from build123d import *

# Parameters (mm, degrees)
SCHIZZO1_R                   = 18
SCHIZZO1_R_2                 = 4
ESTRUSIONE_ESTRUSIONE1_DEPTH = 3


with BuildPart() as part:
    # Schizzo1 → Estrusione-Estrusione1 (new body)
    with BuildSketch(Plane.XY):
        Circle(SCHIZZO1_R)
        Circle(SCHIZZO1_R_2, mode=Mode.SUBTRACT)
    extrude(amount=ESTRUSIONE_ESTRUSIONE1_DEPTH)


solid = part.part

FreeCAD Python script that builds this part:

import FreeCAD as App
import Part
import Sketcher
Q = App.Units.Quantity

doc = App.newDocument("Part")
params = doc.addObject("Spreadsheet::Sheet", "Params")
for row, (alias, value) in enumerate([
    ("sketch1_diameter", "36 mm"),
    ("sketch1_diameter2", "8 mm"),
    ("pad1_length", "3 mm"),
], start=1):
    params.set(f"A{row}", alias)
    params.set(f"B{row}", "=" + value)
    params.setAlias(f"B{row}", alias)

body = doc.addObject("PartDesign::Body", "Body")

# Sketch on XY plane
sketch1 = body.newObject("Sketcher::SketchObject", "Sketch")
sketch1.AttachmentSupport = (doc.getObject("XY_Plane"), [""])
sketch1.MapMode = "FlatFace"
sketch1.addGeometry(Part.Circle(App.Vector(0, 0, 0), App.Vector(0, 0, 1), 18), False)
sketch1.addGeometry(Part.Circle(App.Vector(0, 0, 0), App.Vector(0, 0, 1), 4), False)
sketch1.addConstraint(Sketcher.Constraint("Coincident", 0, 3, -1, 1))
sketch1.addConstraint(Sketcher.Constraint("Coincident", 1, 3, -1, 1))
sketch1.addConstraint(Sketcher.Constraint("Diameter", 0, Q("36 mm")))
sketch1.addConstraint(Sketcher.Constraint("Diameter", 1, Q("8 mm")))
sketch1.setExpression("Constraints[2]", "Params.sketch1_diameter")
sketch1.setExpression("Constraints[3]", "Params.sketch1_diameter2")
pad1 = body.newObject("PartDesign::Pad", "Pad")
pad1.Profile = sketch1
pad1.setExpression("Length", "Params.pad1_length")

doc.recompute()
